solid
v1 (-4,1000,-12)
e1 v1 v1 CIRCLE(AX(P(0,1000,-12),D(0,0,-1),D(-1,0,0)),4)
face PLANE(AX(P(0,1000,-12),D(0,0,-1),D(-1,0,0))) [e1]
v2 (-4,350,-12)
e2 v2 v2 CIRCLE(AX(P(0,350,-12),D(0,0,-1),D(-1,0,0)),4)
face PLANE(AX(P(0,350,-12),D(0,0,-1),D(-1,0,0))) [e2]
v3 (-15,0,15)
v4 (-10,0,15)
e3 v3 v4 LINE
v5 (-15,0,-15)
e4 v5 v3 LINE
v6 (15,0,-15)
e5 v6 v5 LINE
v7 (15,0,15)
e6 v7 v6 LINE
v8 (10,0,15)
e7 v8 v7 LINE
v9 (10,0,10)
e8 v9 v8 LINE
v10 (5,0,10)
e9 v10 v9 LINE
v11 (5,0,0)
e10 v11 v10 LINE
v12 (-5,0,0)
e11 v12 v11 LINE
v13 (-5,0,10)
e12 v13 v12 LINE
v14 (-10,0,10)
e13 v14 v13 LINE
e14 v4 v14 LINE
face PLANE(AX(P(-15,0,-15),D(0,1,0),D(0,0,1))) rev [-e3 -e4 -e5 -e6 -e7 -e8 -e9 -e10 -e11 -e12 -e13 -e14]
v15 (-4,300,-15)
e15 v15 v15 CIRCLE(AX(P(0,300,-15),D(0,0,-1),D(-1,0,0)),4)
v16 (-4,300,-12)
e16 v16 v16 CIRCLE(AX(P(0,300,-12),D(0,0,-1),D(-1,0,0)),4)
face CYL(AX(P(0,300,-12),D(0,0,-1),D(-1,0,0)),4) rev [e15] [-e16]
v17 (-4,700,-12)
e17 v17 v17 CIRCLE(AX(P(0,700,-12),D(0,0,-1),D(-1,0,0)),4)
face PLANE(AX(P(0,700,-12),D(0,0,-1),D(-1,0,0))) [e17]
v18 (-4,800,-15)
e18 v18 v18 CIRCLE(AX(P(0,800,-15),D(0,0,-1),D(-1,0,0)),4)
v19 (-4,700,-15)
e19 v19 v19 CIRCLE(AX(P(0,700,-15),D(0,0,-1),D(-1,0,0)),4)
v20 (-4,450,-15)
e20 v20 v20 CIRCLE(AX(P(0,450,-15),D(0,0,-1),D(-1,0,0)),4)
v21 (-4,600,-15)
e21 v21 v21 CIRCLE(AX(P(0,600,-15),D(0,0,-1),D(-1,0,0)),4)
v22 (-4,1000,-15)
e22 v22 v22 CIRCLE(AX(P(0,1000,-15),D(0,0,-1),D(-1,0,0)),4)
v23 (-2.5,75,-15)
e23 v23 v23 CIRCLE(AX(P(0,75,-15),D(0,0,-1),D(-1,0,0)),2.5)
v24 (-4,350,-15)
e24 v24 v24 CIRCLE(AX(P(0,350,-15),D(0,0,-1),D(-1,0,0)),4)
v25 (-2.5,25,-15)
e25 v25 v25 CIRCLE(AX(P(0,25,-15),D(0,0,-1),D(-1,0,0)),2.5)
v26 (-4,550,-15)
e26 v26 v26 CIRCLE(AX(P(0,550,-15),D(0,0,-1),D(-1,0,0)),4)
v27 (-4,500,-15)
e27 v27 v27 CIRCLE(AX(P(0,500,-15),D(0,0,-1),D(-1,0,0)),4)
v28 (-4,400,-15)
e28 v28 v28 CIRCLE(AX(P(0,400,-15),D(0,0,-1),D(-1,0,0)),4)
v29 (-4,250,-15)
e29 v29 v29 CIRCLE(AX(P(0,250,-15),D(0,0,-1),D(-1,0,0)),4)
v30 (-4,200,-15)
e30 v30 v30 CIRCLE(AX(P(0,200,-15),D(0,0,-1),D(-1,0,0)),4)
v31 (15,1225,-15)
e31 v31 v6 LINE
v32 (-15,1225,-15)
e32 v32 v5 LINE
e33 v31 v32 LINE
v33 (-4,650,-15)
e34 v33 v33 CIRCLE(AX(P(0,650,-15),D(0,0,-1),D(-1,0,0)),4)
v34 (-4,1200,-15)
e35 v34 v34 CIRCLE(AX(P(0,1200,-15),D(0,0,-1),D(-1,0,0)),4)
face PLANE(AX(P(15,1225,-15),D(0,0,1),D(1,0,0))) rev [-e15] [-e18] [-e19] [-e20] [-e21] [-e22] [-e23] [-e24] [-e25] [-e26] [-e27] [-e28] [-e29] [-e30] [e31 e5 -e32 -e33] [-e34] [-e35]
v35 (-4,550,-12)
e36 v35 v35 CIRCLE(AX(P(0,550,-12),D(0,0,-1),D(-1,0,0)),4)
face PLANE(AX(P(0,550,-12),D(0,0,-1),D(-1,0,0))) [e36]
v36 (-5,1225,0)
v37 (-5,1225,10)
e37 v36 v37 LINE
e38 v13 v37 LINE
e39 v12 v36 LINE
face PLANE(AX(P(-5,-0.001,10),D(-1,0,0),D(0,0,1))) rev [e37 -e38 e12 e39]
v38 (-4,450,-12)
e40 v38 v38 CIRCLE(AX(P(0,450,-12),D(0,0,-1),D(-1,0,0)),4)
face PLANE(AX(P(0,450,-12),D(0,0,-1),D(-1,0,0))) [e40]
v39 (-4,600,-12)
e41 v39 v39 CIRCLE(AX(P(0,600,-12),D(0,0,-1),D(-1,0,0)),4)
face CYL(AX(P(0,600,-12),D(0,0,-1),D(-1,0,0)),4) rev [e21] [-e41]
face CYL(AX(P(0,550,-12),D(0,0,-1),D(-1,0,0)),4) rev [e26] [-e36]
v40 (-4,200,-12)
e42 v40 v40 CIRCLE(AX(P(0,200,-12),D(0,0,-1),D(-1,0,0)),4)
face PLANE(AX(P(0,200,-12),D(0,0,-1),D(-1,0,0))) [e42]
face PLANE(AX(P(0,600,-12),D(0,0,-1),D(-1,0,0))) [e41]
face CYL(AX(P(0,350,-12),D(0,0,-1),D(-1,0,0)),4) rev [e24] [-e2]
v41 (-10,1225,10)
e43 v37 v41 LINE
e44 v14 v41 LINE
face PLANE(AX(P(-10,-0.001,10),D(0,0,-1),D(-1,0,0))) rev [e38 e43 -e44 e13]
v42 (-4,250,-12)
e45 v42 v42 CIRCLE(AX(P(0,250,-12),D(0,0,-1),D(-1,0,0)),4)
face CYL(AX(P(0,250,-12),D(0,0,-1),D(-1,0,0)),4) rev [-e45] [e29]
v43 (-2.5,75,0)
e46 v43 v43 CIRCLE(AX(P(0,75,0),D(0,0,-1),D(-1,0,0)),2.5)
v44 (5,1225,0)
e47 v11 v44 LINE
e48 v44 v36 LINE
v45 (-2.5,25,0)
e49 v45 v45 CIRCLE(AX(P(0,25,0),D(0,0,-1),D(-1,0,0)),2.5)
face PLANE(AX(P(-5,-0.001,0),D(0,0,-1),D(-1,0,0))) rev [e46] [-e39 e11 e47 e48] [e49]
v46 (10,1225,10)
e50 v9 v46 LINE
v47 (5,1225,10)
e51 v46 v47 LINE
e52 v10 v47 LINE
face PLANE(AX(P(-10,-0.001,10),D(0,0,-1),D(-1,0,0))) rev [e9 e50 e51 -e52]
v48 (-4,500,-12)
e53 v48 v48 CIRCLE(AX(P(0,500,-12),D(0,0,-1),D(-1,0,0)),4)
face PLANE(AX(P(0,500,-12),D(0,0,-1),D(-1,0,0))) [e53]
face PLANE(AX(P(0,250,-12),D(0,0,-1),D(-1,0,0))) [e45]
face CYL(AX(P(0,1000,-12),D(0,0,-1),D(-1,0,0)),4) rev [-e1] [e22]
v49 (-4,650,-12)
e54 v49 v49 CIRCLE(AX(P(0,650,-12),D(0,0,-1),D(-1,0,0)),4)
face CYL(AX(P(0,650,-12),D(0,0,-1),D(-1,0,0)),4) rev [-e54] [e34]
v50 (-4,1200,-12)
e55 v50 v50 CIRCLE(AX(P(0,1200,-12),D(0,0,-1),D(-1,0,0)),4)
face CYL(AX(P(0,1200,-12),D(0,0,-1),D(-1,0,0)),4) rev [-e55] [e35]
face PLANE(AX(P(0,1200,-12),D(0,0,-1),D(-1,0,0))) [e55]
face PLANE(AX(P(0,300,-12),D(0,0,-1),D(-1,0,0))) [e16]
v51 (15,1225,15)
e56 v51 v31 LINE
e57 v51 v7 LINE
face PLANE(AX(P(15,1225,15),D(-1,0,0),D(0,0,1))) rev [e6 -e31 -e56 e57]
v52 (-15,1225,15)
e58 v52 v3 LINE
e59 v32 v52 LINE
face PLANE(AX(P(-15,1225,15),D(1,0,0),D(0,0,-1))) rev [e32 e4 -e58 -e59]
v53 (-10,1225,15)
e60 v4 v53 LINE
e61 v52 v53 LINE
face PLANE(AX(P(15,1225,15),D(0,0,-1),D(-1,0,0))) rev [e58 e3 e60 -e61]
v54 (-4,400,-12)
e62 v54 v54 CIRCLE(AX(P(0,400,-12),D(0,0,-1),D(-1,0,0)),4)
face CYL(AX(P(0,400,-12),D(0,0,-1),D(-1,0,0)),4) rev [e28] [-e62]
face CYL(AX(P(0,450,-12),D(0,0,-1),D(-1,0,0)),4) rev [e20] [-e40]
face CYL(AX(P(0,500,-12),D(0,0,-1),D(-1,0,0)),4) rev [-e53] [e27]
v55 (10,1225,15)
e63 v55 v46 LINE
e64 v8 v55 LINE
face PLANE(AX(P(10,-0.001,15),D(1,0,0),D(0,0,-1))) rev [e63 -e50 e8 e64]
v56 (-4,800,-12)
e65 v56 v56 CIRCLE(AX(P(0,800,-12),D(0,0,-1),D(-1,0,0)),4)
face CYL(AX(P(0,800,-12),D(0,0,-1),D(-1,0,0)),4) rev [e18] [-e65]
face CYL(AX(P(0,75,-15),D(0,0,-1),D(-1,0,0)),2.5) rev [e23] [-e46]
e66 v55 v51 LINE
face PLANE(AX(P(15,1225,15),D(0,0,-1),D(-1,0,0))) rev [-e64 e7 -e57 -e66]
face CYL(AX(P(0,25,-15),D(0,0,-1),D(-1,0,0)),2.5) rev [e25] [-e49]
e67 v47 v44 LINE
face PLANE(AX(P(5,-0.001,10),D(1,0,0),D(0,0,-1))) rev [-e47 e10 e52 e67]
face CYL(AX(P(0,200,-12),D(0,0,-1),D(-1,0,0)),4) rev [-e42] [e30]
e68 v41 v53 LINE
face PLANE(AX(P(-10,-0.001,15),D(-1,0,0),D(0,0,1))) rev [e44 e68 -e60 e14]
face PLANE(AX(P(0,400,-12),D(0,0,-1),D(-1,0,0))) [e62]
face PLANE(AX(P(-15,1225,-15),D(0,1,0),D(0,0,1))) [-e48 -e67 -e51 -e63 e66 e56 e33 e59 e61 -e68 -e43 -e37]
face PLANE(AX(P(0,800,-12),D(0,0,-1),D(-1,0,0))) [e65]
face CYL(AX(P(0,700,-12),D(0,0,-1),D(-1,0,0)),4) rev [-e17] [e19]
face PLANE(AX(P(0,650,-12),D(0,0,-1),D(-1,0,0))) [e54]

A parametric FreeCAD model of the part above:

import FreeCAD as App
import Part
import Sketcher
from FreeCAD import Vector


def add_polygon(sketch, points):
    """Adds a closed chain of lines whose ends are joined by coincident constraints."""
    first, n = sketch.GeometryCount, len(points)
    for a, b in zip(points, points[1:] + points[:1]):
        sketch.addGeometry(Part.LineSegment(App.Vector(*a, 0), App.Vector(*b, 0)), False)
    for i in range(n):
        sketch.addConstraint(Sketcher.Constraint("Coincident", first + i, 2, first + (i + 1) % n, 1))

doc = App.newDocument("Part")
body = doc.addObject("PartDesign::Body", "Body")

sketch1 = body.newObject("Sketcher::SketchObject", "Sketch")
sketch1.AttachmentSupport = (doc.getObject("XZ_Plane"), [""])
sketch1.MapMode = "FlatFace"
add_polygon(sketch1, [(-15, -15), (-15, 15), (15, 15), (15, -15)])
sketch1.addConstraint([
    Sketcher.Constraint("Vertical", 0),
    Sketcher.Constraint("Horizontal", 1),
    Sketcher.Constraint("Vertical", 2),
    Sketcher.Constraint("Horizontal", 3),
    Sketcher.Constraint("Symmetric", 0, 2, 2, 2, -1, 1),
    Sketcher.Constraint("Equal", 3, 0),
    Sketcher.Constraint("DistanceX", 1, 1, 1, 2, 30.0),
])
pad1 = body.newObject("PartDesign::Pad", "Pad")
pad1.Profile = sketch1
pad1.Length = 1225
pad1.Reversed = True

sketch2 = body.newObject("Sketcher::SketchObject", "Sketch001")
sketch2.AttachmentSupport = (doc.getObject("XZ_Plane"), [""])
sketch2.MapMode = "FlatFace"
sketch2.AttachmentOffset = App.Placement(Vector(0, 0, -1225), App.Rotation())
add_polygon(sketch2, [(-10, 10), (-10, 15), (10, 15), (10, 10)])
sketch2.addConstraint([
    Sketcher.Constraint("Vertical", 0),
    Sketcher.Constraint("Horizontal", 1),
    Sketcher.Constraint("Vertical", 2),
    Sketcher.Constraint("Horizontal", 3),
    Sketcher.Constraint("DistanceX", 1, 1, 1, 2, 20.0),
    Sketcher.Constraint("DistanceY", 0, 1, 0, 2, 5.0),
    Sketcher.Constraint("DistanceX", 0, 2, -1, 1, 10.0),
    Sketcher.Constraint("DistanceY", -1, 1, 0, 2, 15.0),
])
pocket1 = body.newObject("PartDesign::Pocket", "Pocket")
pocket1.Profile = sketch2
pocket1.Type = "UpToFirst"
pocket1.Reversed = True

sketch3 = body.newObject("Sketcher::SketchObject", "Sketch002")
sketch3.AttachmentSupport = (doc.getObject("XZ_Plane"), [""])
sketch3.MapMode = "FlatFace"
sketch3.AttachmentOffset = App.Placement(Vector(0, 0, -1225), App.Rotation())
add_polygon(sketch3, [(-5, 0), (-5, 10), (5, 10), (5, 0)])
sketch3.addConstraint([
    Sketcher.Constraint("Vertical", 0),
    Sketcher.Constraint("Horizontal", 1),
    Sketcher.Constraint("Vertical", 2),
    Sketcher.Constraint("Horizontal", 3),
    Sketcher.Constraint("Symmetric", 2, 2, 3, 2, -1, 1),
    Sketcher.Constraint("Equal", 3, 0),
    Sketcher.Constraint("DistanceX", 1, 1, 1, 2, 10.0),
])
pocket2 = body.newObject("PartDesign::Pocket", "Pocket001")
pocket2.Profile = sketch3
pocket2.Type = "UpToFirst"
pocket2.Reversed = True

sketch4 = body.newObject("Sketcher::SketchObject", "Sketch003")
sketch4.AttachmentSupport = (doc.getObject("XY_Plane"), [""])
sketch4.MapMode = "FlatFace"
sketch4.AttachmentOffset = App.Placement(Vector(0, 0, -15), App.Rotation())
sketch4.addGeometry([
    Part.Circle(Vector(0, 1200, 0), Vector(0, 0, 1), 4),
    Part.Circle(Vector(0, 1000, 0), Vector(0, 0, 1), 4),
    Part.Circle(Vector(0, 800, 0), Vector(0, 0, 1), 4),
    Part.Circle(Vector(0, 700, 0), Vector(0, 0, 1), 4),
    Part.Circle(Vector(0, 650, 0), Vector(0, 0, 1), 4),
    Part.Circle(Vector(0, 600, 0), Vector(0, 0, 1), 4),
    Part.Circle(Vector(0, 550, 0), Vector(0, 0, 1), 4),
    Part.Circle(Vector(0, 500, 0), Vector(0, 0, 1), 4),
    Part.Circle(Vector(0, 450, 0), Vector(0, 0, 1), 4),
    Part.Circle(Vector(0, 400, 0), Vector(0, 0, 1), 4),
    Part.Circle(Vector(0, 350, 0), Vector(0, 0, 1), 4),
    Part.Circle(Vector(0, 300, 0), Vector(0, 0, 1), 4),
    Part.Circle(Vector(0, 250, 0), Vector(0, 0, 1), 4),
    Part.Circle(Vector(0, 200, 0), Vector(0, 0, 1), 4),
], False)
sketch4.addConstraint([
    Sketcher.Constraint("Equal", 0, 1),
    Sketcher.Constraint("Equal", 1, 2),
    Sketcher.Constraint("Equal", 2, 3),
    Sketcher.Constraint("Equal", 3, 4),
    Sketcher.Constraint("Equal", 4, 5),
    Sketcher.Constraint("Equal", 5, 6),
    Sketcher.Constraint("Equal", 6, 7),
    Sketcher.Constraint("Equal", 7, 8),
    Sketcher.Constraint("Equal", 8, 9),
    Sketcher.Constraint("Equal", 9, 10),
    Sketcher.Constraint("Equal", 10, 11),
    Sketcher.Constraint("Equal", 11, 12),
    Sketcher.Constraint("Equal", 12, 13),
    Sketcher.Constraint("PointOnObject", 0, 3, -2),
    Sketcher.Constraint("PointOnObject", 1, 3, -2),
    Sketcher.Constraint("PointOnObject", 2, 3, -2),
    Sketcher.Constraint("PointOnObject", 3, 3, -2),
    Sketcher.Constraint("PointOnObject", 4, 3, -2),
    Sketcher.Constraint("PointOnObject", 5, 3, -2),
    Sketcher.Constraint("PointOnObject", 6, 3, -2),
    Sketcher.Constraint("PointOnObject", 7, 3, -2),
    Sketcher.Constraint("PointOnObject", 8, 3, -2),
    Sketcher.Constraint("PointOnObject", 9, 3, -2),
    Sketcher.Constraint("PointOnObject", 10, 3, -2),
    Sketcher.Constraint("PointOnObject", 11, 3, -2),
    Sketcher.Constraint("PointOnObject", 12, 3, -2),
    Sketcher.Constraint("PointOnObject", 13, 3, -2),
    Sketcher.Constraint("Diameter", 0, 8.0),
    Sketcher.Constraint("DistanceY", -1, 1, 0, 3, 1200.0),
    Sketcher.Constraint("DistanceY", -1, 1, 1, 3, 1000.0),
    Sketcher.Constraint("DistanceY", -1, 1, 2, 3, 800.0),
    Sketcher.Constraint("DistanceY", -1, 1, 3, 3, 700.0),
    Sketcher.Constraint("DistanceY", -1, 1, 4, 3, 650.0),
    Sketcher.Constraint("DistanceY", -1, 1, 5, 3, 600.0),
    Sketcher.Constraint("DistanceY", -1, 1, 6, 3, 550.0),
    Sketcher.Constraint("DistanceY", -1, 1, 7, 3, 500.0),
    Sketcher.Constraint("DistanceY", -1, 1, 8, 3, 450.0),
    Sketcher.Constraint("DistanceY", -1, 1, 9, 3, 400.0),
    Sketcher.Constraint("DistanceY", -1, 1, 10, 3, 350.0),
    Sketcher.Constraint("DistanceY", -1, 1, 11, 3, 300.0),
    Sketcher.Constraint("DistanceY", -1, 1, 12, 3, 250.0),
    Sketcher.Constraint("DistanceY", -1, 1, 13, 3, 200.0),
])
pocket3 = body.newObject("PartDesign::Pocket", "Pocket002")
pocket3.Profile = sketch4
pocket3.Length = 3
pocket3.Reversed = True

sketch5 = body.newObject("Sketcher::SketchObject", "Sketch004")
sketch5.AttachmentSupport = (doc.getObject("XY_Plane"), [""])
sketch5.MapMode = "FlatFace"
sketch5.AttachmentOffset = App.Placement(Vector(0, 0, -15), App.Rotation())
sketch5.addGeometry([
    Part.Circle(Vector(0, 75, 0), Vector(0, 0, 1), 2.5),
    Part.Circle(Vector(0, 25, 0), Vector(0, 0, 1), 2.5),
], False)
sketch5.addConstraint([
    Sketcher.Constraint("Equal", 0, 1),
    Sketcher.Constraint("PointOnObject", 0, 3, -2),
    Sketcher.Constraint("PointOnObject", 1, 3, -2),
    Sketcher.Constraint("Diameter", 0, 5.0),
    Sketcher.Constraint("DistanceY", -1, 1, 0, 3, 75.0),
    Sketcher.Constraint("DistanceY", -1, 1, 1, 3, 25.0),
])
doc.recompute()
hole = body.newObject("PartDesign::Hole", "Hole")
hole.Profile = sketch5
hole.ThreadType = "None"
hole.Diameter = 5
hole.DepthType = "Dimension"
hole.Depth = 15
hole.DrillPoint = "Angled"
hole.DrillPointAngle = 118
hole.Reversed = True

doc.recompute()
